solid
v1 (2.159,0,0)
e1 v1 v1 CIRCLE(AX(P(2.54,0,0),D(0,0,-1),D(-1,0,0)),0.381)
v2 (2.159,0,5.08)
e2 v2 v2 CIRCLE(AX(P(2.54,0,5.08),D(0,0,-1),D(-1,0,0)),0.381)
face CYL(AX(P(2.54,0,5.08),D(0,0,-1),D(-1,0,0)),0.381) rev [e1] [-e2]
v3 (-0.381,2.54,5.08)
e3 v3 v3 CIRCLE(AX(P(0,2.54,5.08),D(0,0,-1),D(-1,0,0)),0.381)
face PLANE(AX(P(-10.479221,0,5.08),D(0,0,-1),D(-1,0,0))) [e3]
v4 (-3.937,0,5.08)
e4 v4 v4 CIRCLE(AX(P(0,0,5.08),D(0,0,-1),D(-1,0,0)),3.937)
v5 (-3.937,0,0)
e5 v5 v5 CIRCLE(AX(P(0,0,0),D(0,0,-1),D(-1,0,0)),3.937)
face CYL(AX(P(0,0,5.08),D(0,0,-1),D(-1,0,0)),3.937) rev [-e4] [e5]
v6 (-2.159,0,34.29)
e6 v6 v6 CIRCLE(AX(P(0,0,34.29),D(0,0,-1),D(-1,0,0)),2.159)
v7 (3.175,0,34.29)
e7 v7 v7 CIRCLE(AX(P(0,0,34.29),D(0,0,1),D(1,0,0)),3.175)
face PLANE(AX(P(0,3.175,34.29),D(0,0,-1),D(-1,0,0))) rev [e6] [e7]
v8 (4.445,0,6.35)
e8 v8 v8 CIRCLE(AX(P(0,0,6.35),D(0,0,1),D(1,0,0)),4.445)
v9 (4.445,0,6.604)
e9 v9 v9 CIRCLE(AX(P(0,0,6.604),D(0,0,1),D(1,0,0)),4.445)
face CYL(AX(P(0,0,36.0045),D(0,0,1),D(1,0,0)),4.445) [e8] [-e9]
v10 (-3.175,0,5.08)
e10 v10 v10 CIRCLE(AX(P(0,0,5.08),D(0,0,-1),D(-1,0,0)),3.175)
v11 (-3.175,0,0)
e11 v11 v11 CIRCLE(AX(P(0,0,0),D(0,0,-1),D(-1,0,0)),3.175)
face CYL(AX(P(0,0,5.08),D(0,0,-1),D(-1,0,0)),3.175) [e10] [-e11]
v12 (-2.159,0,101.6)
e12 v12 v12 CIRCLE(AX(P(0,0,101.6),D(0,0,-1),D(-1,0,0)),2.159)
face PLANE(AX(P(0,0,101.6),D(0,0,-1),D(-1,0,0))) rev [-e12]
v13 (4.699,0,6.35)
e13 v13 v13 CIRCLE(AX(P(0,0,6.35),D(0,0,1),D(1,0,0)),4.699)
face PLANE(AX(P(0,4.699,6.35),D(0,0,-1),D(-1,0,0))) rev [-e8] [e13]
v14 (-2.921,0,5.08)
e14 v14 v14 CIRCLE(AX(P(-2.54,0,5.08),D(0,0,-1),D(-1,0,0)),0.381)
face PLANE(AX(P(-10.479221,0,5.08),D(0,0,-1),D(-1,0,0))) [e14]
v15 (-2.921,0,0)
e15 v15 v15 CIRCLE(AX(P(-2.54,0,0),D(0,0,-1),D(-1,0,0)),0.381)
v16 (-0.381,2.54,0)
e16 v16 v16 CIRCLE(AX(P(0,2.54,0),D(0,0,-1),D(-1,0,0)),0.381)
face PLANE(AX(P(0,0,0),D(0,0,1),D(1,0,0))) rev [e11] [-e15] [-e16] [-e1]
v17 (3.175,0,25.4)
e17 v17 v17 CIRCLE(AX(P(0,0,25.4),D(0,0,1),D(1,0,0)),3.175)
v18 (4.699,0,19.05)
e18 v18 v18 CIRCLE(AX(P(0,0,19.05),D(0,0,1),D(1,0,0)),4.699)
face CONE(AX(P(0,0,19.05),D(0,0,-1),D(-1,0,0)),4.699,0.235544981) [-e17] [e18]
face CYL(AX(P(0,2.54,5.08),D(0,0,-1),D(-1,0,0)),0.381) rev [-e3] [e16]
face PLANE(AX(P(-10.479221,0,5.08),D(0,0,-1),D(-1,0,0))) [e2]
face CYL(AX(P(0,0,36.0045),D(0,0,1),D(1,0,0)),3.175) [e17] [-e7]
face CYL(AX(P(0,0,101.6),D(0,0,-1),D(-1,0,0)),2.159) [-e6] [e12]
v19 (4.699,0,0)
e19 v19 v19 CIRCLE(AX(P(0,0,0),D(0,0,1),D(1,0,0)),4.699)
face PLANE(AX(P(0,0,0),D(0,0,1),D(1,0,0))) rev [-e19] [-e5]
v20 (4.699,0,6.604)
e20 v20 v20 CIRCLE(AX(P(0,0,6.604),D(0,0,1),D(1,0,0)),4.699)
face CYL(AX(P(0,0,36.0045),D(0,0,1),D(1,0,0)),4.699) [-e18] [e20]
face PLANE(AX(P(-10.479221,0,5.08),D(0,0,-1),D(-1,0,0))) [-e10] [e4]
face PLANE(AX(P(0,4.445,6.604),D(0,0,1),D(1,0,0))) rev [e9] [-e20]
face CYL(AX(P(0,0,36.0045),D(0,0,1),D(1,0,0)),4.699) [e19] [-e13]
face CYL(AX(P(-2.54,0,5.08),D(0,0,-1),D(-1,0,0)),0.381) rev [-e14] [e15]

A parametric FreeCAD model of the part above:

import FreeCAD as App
import Part
import Sketcher

V = App.Vector
Q = App.Units.Quantity


def add_polygon(sketch, points):
    """Adds a closed chain of lines whose ends are joined by coincident constraints."""
    first, n = sketch.GeometryCount, len(points)
    for a, b in zip(points, points[1:] + points[:1]):
        sketch.addGeometry(Part.LineSegment(App.Vector(*a, 0), App.Vector(*b, 0)), False)
    for i in range(n):
        sketch.addConstraint(Sketcher.Constraint("Coincident", first + i, 2, first + (i + 1) % n, 1))

doc = App.newDocument("Part")
body = doc.addObject("PartDesign::Body", "Body")

# Sketch on YZ plane
sketch1 = body.newObject("Sketcher::SketchObject", "Sketch")
sketch1.AttachmentSupport = (doc.getObject("YZ_Plane"), [""])
sketch1.MapMode = "FlatFace"
add_polygon(sketch1, [(0, 0), (4.7, 0), (4.7, 6.35), (4.45, 6.35), (4.45, 6.6), (4.7, 6.6), (4.7, 19.05), (3.17, 25.4), (3.17, 34.29), (0, 34.29)])  # lines 0-9
sketch1.addConstraint([
    Sketcher.Constraint("Horizontal", 0),
    Sketcher.Constraint("Vertical", 1),
    Sketcher.Constraint("Horizontal", 2),
    Sketcher.Constraint("Vertical", 3),
    Sketcher.Constraint("Horizontal", 4),
    Sketcher.Constraint("Vertical", 5),
    Sketcher.Constraint("Vertical", 7),
    Sketcher.Constraint("Horizontal", 8),
    Sketcher.Constraint("Vertical", 9),
    Sketcher.Constraint("Coincident", 9, 2, -1, 1),
    Sketcher.Constraint("Vertical", 1, 2, 4, 2),
    Sketcher.Constraint("Equal", 4, 3),
    Sketcher.Constraint("DistanceY", -1, 1, 6, 2, Q("1 in")),
    Sketcher.Constraint("DistanceX", 2, 2, 2, 1, Q("0.01 in")),
    Sketcher.Constraint("DistanceY", 1, 1, 1, 2, Q("0.25 in")),
    Sketcher.Constraint("DistanceY", 5, 1, 5, 2, Q("0.49 in")),
    Sketcher.Constraint("DistanceY", 7, 1, 7, 2, Q("0.35 in")),
    Sketcher.Constraint("DistanceX", 0, 1, 0, 2, Q("0.185 in")),
    Sketcher.Constraint("DistanceX", 8, 2, 8, 1, Q("0.125 in")),
])
revolution = body.newObject("PartDesign::Revolution", "Revolution")
revolution.Profile = sketch1
revolution.ReferenceAxis = (sketch1, ["V_Axis"])
revolution.Angle = 360

# Sketch on XY plane
sketch2 = body.newObject("Sketcher::SketchObject", "Sketch001")
sketch2.AttachmentSupport = (doc.getObject("XY_Plane"), [""])
sketch2.MapMode = "FlatFace"
sketch2.addGeometry(Part.Circle(V(0, 0, 0), V(0, 0, 1), 2.2), False)
sketch2.addConstraint([
    Sketcher.Constraint("Coincident", 0, 3, -1, 1),
    Sketcher.Constraint("Diameter", 0, Q("0.17 in")),
])
pad1 = body.newObject("PartDesign::Pad", "Pad")
pad1.Profile = sketch2
pad1.Length = Q("4 in")

# Sketch on XY plane
sketch3 = body.newObject("Sketcher::SketchObject", "Sketch002")
sketch3.AttachmentSupport = (doc.getObject("XY_Plane"), [""])
sketch3.MapMode = "FlatFace"
sketch3.addGeometry([
    Part.Circle(V(0, 0, 0), V(0, 0, 1), 3.94),  # 0
    Part.Circle(V(0, 0, 0), V(0, 0, 1), 3.17),  # 1
    Part.Circle(V(0, 2.54, 0), V(0, 0, 1), 0.38),  # 2
    Part.Circle(V(-2.54, 0, 0), V(0, 0, 1), 0.38),  # 3
    Part.Circle(V(2.54, 0, 0), V(0, 0, 1), 0.38),  # 4
], False)
sketch3.addConstraint([
    Sketcher.Constraint("Coincident", 0, 3, -1, 1),
    Sketcher.Constraint("Coincident", 1, 3, -1, 1),
    Sketcher.Constraint("Equal", 2, 3),
    Sketcher.Constraint("Equal", 3, 4),
    Sketcher.Constraint("Symmetric", 3, 3, 4, 3, -1, 1),
    Sketcher.Constraint("PointOnObject", 2, 3, -2),
    Sketcher.Constraint("PointOnObject", 3, 3, -1),
    Sketcher.Constraint("Diameter", 0, Q("0.31 in")),
    Sketcher.Constraint("Diameter", 1, Q("0.25 in")),
    Sketcher.Constraint("Diameter", 2, Q("0.03 in")),
    Sketcher.Constraint("DistanceY", -1, 1, 2, 3, Q("0.1 in")),
    Sketcher.Constraint("DistanceX", 3, 3, -1, 1, Q("0.1 in")),
])
pocket1 = body.newObject("PartDesign::Pocket", "Pocket")
pocket1.Profile = sketch3
pocket1.Length = Q("0.2 in")
pocket1.Reversed = True

doc.recompute()
